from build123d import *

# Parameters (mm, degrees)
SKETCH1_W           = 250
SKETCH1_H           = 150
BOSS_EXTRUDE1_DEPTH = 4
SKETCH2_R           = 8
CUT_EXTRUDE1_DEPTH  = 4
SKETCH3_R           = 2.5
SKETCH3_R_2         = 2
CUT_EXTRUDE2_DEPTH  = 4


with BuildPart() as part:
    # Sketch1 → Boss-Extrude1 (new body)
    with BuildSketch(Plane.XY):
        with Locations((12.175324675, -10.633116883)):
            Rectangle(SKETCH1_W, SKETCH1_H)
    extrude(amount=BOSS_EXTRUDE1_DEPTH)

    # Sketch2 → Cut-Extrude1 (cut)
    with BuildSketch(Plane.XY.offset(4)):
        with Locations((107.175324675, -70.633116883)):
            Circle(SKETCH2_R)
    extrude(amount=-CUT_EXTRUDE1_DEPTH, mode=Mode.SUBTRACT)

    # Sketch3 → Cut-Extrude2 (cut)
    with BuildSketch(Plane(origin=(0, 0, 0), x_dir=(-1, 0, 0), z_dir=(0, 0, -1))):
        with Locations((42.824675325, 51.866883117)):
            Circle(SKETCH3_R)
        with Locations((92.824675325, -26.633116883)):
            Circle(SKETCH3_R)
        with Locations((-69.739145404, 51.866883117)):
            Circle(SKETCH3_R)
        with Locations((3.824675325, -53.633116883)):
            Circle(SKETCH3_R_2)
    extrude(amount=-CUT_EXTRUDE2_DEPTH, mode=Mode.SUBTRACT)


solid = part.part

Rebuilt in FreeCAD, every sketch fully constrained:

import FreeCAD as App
import Part
import Sketcher
from FreeCAD import Vector

doc = App.newDocument("Part")
body = doc.addObject("PartDesign::Body", "Body")

sketch1 = body.newObject("Sketcher::SketchObject", "Sketch")
sketch1.AttachmentSupport = (doc.getObject("XY_Plane"), [""])
sketch1.MapMode = "FlatFace"
sketch1.addGeometry([
    Part.LineSegment(Vector(-113, 64, 0), Vector(-113, -86, 0)),
    Part.LineSegment(Vector(-113, -86, 0), Vector(137, -86, 0)),
    Part.LineSegment(Vector(137, -86, 0), Vector(137, 64, 0)),
    Part.LineSegment(Vector(137, 64, 0), Vector(-113, 64, 0)),
], False)
sketch1.addConstraint([
    Sketcher.Constraint("Coincident", 0, 2, 1, 1),
    Sketcher.Constraint("Coincident", 1, 2, 2, 1),
    Sketcher.Constraint("Coincident", 2, 2, 3, 1),
    Sketcher.Constraint("Coincident", 3, 2, 0, 1),
    Sketcher.Constraint("Vertical", 0),
    Sketcher.Constraint("Horizontal", 1),
    Sketcher.Constraint("Vertical", 2),
    Sketcher.Constraint("Horizontal", 3),
    Sketcher.Constraint("DistanceX", 1, 1, 1, 2, 250.0),
    Sketcher.Constraint("DistanceY", 0, 2, 0, 1, 150.0),
    Sketcher.Constraint("DistanceX", 0, 2, -1, 1, 112.824675),
    Sketcher.Constraint("DistanceY", 0, 2, -1, 1, 85.633117),
])
pad1 = body.newObject("PartDesign::Pad", "Pad")
pad1.Profile = sketch1
pad1.Length = 4

sketch2 = body.newObject("Sketcher::SketchObject", "Sketch001")
sketch2.AttachmentSupport = (doc.getObject("XY_Plane"), [""])
sketch2.MapMode = "FlatFace"
sketch2.AttachmentOffset = App.Placement(Vector(0, 0, 4), App.Rotation())
sketch2.addGeometry(Part.Circle(Vector(107, -71, 0), Vector(0, 0, 1), 8), False)
sketch2.addConstraint([
    Sketcher.Constraint("Diameter", 0, 16.0),
    Sketcher.Constraint("DistanceX", -1, 1, 0, 3, 107.175325),
    Sketcher.Constraint("DistanceY", 0, 3, -1, 1, 70.633117),
])
pocket1 = body.newObject("PartDesign::Pocket", "Pocket")
pocket1.Profile = sketch2
pocket1.Length = 4

sketch3 = body.newObject("Sketcher::SketchObject", "Sketch002")
sketch3.AttachmentSupport = (doc.getObject("XY_Plane"), [""])
sketch3.MapMode = "FlatFace"
sketch3.addGeometry([
    Part.Circle(Vector(-42.8, 51.9, 0), Vector(0, 0, 1), 2.5),
    Part.Circle(Vector(-92.8, -26.6, 0), Vector(0, 0, 1), 2.5),
    Part.Circle(Vector(69.7, 51.9, 0), Vector(0, 0, 1), 2.5),
    Part.Circle(Vector(-3.8, -53.6, 0), Vector(0, 0, 1), 2),
], False)
sketch3.addConstraint([
    Sketcher.Constraint("Equal", 0, 1),
    Sketcher.Constraint("Equal", 1, 2),
    Sketcher.Constraint("Horizontal", 0, 3, 2, 3),
    Sketcher.Constraint("Diameter", 0, 5.0),
    Sketcher.Constraint("Diameter", 3, 4.0),
    Sketcher.Constraint("DistanceX", 1, 3, 0, 3, 50.0),
    Sketcher.Constraint("DistanceX", 1, 3, 3, 3, 89.0),
    Sketcher.Constraint("DistanceY", 3, 3, 1, 3, 27.0),
    Sketcher.Constraint("DistanceY", 1, 3, 0, 3, 78.5),
    Sketcher.Constraint("DistanceX", 0, 3, 2, 3, 112.563821),
    Sketcher.Constraint("DistanceX", 0, 3, -1, 1, 42.824675),
    Sketcher.Constraint("DistanceY", -1, 1, 0, 3, 51.866883),
])
pocket2 = body.newObject("PartDesign::Pocket", "Pocket001")
pocket2.Profile = sketch3
pocket2.Length = 4
pocket2.Reversed = True

doc.recompute()
